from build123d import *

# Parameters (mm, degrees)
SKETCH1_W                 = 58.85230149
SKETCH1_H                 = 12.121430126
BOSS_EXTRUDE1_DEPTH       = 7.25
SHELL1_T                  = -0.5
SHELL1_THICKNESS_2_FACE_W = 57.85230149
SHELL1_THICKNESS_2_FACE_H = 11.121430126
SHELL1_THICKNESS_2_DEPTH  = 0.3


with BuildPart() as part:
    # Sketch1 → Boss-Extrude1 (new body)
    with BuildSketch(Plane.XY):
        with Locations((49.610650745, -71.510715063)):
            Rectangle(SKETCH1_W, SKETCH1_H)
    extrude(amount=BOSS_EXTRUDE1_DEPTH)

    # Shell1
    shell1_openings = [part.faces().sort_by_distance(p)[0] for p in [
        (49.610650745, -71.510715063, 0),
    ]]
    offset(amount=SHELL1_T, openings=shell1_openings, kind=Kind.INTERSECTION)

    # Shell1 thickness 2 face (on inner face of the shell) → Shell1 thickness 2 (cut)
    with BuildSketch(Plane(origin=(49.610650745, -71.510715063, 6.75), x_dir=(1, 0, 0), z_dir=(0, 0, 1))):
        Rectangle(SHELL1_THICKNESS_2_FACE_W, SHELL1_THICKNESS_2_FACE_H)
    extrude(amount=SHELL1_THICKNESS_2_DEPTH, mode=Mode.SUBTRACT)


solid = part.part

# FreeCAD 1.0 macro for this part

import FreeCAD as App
import Part
import Sketcher
Q = App.Units.Quantity


def faces_at(feature, points):
    """Names of the faces that lie closest to the given points."""
    faces = feature.Shape.Faces
    near = lambda p: min(range(len(faces)), key=lambda i: faces[i].distToShape(Part.Vertex(*p))[0])
    return sorted({f"Face{near(p) + 1}" for p in points})


def add_polygon(sketch, points):
    """Adds a closed chain of lines whose ends are joined by coincident constraints."""
    first, n = sketch.GeometryCount, len(points)
    for a, b in zip(points, points[1:] + points[:1]):
        sketch.addGeometry(Part.LineSegment(App.Vector(*a, 0), App.Vector(*b, 0)), False)
    for i in range(n):
        sketch.addConstraint(Sketcher.Constraint("Coincident", first + i, 2, first + (i + 1) % n, 1))

doc = App.newDocument("Part")
body = doc.addObject("PartDesign::Body", "Body")

# Sketch on XY plane
sketch1 = body.newObject("Sketcher::SketchObject", "Sketch")
sketch1.AttachmentSupport = (doc.getObject("XY_Plane"), [""])
sketch1.MapMode = "FlatFace"
add_polygon(sketch1, [(20.1845, -65.45), (20.1845, -77.57143), (79.036801, -77.57143), (79.036801, -65.45)])  # lines 0-3
sketch1.addConstraint([
    Sketcher.Constraint("Vertical", 0),
    Sketcher.Constraint("Horizontal", 1),
    Sketcher.Constraint("Vertical", 2),
    Sketcher.Constraint("Horizontal", 3),
    Sketcher.Constraint("DistanceY", 2, 2, -1, 1, Q("65.45 mm")),
    Sketcher.Constraint("DistanceX", 1, 1, 1, 2, Q("58.852301 mm")),
    Sketcher.Constraint("DistanceY", 0, 2, 0, 1, Q("12.12143 mm")),
    Sketcher.Constraint("DistanceX", -1, 1, 0, 2, Q("20.1845 mm")),
])
pad1 = body.newObject("PartDesign::Pad", "Pad")
pad1.Profile = sketch1
pad1.Length = 7.25
doc.recompute()

thickness = body.newObject("PartDesign::Thickness", "Thickness")
thickness.Base = (pad1, faces_at(pad1, [(49.611, -71.511, 0)]))
thickness.Value = 0.5
thickness.Reversed = True
thickness.Join = "Intersection"

# Sketch on XY plane
sketch2 = body.newObject("Sketcher::SketchObject", "Sketch001")
sketch2.AttachmentSupport = (doc.getObject("XY_Plane"), [""])
sketch2.MapMode = "FlatFace"
sketch2.AttachmentOffset = App.Placement(App.Vector(0, 0, 6.75), App.Rotation())
add_polygon(sketch2, [(20.6845, -65.95), (20.6845, -77.07143), (78.536801, -77.07143), (78.536801, -65.95)])  # lines 0-3
sketch2.addConstraint([
    Sketcher.Constraint("Vertical", 0),
    Sketcher.Constraint("Horizontal", 1),
    Sketcher.Constraint("Vertical", 2),
    Sketcher.Constraint("Horizontal", 3),
    Sketcher.Constraint("DistanceY", 2, 2, -1, 1, Q("65.95 mm")),
    Sketcher.Constraint("DistanceX", 1, 1, 1, 2, Q("57.852301 mm")),
    Sketcher.Constraint("DistanceY", 0, 2, 0, 1, Q("11.12143 mm")),
    Sketcher.Constraint("DistanceX", -1, 1, 0, 2, Q("20.6845 mm")),
])
pocket1 = body.newObject("PartDesign::Pocket", "Pocket")
pocket1.Profile = sketch2
pocket1.Length = 0.3
pocket1.Reversed = True

doc.recompute()
